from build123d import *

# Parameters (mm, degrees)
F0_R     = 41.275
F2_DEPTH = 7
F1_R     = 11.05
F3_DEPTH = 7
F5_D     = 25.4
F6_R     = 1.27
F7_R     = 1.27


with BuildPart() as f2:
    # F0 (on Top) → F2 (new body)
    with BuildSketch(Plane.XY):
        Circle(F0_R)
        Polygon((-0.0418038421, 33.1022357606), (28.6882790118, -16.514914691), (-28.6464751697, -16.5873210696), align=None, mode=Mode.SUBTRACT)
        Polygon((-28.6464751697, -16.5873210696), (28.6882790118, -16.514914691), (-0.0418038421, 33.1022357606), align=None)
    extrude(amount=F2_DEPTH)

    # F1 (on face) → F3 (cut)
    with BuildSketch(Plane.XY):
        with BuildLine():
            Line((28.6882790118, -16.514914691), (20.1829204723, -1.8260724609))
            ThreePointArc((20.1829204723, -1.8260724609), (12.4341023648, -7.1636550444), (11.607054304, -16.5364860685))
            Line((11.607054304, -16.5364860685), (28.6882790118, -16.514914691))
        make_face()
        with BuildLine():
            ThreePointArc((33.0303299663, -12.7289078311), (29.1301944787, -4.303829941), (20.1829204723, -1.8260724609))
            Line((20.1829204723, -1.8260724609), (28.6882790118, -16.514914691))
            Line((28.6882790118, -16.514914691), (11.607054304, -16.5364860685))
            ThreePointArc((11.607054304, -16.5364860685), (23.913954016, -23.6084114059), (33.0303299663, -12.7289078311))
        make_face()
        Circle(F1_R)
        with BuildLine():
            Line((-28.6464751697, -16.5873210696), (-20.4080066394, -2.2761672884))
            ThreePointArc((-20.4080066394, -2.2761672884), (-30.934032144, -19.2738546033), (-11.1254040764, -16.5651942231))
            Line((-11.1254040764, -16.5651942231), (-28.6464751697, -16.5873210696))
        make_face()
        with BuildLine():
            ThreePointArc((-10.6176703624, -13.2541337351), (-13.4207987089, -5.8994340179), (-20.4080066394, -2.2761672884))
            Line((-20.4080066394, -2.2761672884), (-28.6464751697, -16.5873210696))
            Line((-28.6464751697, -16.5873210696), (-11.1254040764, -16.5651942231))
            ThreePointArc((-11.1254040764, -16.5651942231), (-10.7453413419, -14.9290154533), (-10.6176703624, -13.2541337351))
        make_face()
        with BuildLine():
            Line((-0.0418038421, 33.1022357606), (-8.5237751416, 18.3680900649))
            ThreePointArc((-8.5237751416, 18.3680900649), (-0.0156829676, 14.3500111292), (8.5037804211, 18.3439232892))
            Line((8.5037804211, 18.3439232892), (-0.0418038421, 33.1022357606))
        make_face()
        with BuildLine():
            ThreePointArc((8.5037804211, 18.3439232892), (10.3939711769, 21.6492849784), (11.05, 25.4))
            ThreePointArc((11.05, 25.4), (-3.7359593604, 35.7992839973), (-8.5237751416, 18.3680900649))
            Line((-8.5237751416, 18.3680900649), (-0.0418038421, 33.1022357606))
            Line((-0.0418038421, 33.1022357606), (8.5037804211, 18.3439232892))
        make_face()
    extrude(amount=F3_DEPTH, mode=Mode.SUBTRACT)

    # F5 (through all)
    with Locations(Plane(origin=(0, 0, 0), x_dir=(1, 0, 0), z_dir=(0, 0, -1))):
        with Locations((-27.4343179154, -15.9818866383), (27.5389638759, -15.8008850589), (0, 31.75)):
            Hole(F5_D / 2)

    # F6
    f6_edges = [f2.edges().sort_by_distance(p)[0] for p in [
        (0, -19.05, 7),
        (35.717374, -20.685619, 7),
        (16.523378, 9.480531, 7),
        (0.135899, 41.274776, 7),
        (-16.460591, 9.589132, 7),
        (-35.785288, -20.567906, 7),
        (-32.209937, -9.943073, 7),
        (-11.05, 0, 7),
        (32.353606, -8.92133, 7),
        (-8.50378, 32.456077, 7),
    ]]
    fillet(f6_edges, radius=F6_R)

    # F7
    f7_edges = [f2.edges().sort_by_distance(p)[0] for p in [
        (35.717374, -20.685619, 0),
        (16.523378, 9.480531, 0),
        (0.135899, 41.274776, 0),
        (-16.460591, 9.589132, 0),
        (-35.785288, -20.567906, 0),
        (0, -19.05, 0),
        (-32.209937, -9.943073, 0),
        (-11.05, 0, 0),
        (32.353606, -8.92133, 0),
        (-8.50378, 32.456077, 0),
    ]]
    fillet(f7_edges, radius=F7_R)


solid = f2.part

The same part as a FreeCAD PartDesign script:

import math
import FreeCAD as App
import Part
import Sketcher

V = App.Vector
Q = App.Units.Quantity


def edges_at(feature, points):
    """Names of the edges that pass closest to the given points."""
    edges = feature.Shape.Edges
    near = lambda p: min(range(len(edges)), key=lambda i: edges[i].distToShape(Part.Vertex(*p))[0])
    return sorted({f"Edge{near(p) + 1}" for p in points})

doc = App.newDocument("Part")
body = doc.addObject("PartDesign::Body", "Body")

# Sketch on XY plane
sketch1 = body.newObject("Sketcher::SketchObject", "Sketch")
sketch1.AttachmentSupport = (doc.getObject("XY_Plane"), [""])
sketch1.MapMode = "FlatFace"
sketch1.addGeometry(Part.Circle(V(0, 0, 0), V(0, 0, 1), 41.275), False)
sketch1.addConstraint([
    Sketcher.Constraint("Coincident", 0, 3, -1, 1),
    Sketcher.Constraint("Diameter", 0, Q("3.25 in")),
])
pad1 = body.newObject("PartDesign::Pad", "Pad")
pad1.Profile = sketch1
pad1.Length = 7

# Sketch on XY plane
sketch2 = body.newObject("Sketcher::SketchObject", "Sketch001")
sketch2.AttachmentSupport = (doc.getObject("XY_Plane"), [""])
sketch2.MapMode = "FlatFace"
sketch2.addGeometry([
    Part.ArcOfCircle(Part.Circle(V(21.98033, -12.728908, 0), V(0, 0, 1), 11.05), math.radians(99.361413), math.radians(200.15599)),  # 0
    Part.ArcOfCircle(Part.Circle(V(21.98033, -12.728908, 0), V(0, 0, 1), 11.05), math.radians(-159.84401), math.radians(99.361413)),  # 1
    Part.Circle(V(0, 0, 0), V(0, 0, 1), 11.05),  # 2
    Part.ArcOfCircle(Part.Circle(V(-21.66767, -13.254134, 0), V(0, 0, 1), 11.05), math.radians(83.454239), math.radians(342.563809)),  # 3
    Part.ArcOfCircle(Part.Circle(V(-21.66767, -13.254134, 0), V(0, 0, 1), 11.05), math.radians(-17.436191), math.radians(0)),  # 4
    Part.ArcOfCircle(Part.Circle(V(-21.66767, -13.254134, 0), V(0, 0, 1), 11.05), math.radians(0), math.radians(83.454239)),  # 5
    Part.ArcOfCircle(Part.Circle(V(0, 25.4, 0), V(0, 0, 1), 11.05), math.radians(-140.478187), math.radians(-39.68445)),  # 6
    Part.ArcOfCircle(Part.Circle(V(0, 25.4, 0), V(0, 0, 1), 11.05), math.radians(-39.68445), math.radians(0)),  # 7
    Part.ArcOfCircle(Part.Circle(V(0, 25.4, 0), V(0, 0, 1), 11.05), math.radians(0), math.radians(219.521813)),  # 8
], False)
sketch2.addConstraint([
    Sketcher.Constraint("Tangent", 0, 1, 1, 2),
    Sketcher.Constraint("Coincident", 1, 1, 0, 2),
    Sketcher.Constraint("Tangent", 3, 2, 4, 1),
    Sketcher.Constraint("Tangent", 4, 2, 5, 1),
    Sketcher.Constraint("Tangent", 5, 2, 3, 1),
    Sketcher.Constraint("Tangent", 6, 2, 7, 1),
    Sketcher.Constraint("Tangent", 7, 2, 8, 1),
    Sketcher.Constraint("Tangent", 8, 2, 6, 1),
    Sketcher.Constraint("Coincident", 2, 3, -1, 1),
    Sketcher.Constraint("Equal", 1, 2),
    Sketcher.Constraint("Equal", 2, 3),
    Sketcher.Constraint("Equal", 5, 6),
    Sketcher.Constraint("PointOnObject", 6, 3, -2),
    Sketcher.Constraint("Horizontal", 5, 3, 4, 2),
    Sketcher.Constraint("Horizontal", 8, 3, 7, 2),
    Sketcher.Constraint("DistanceY", -1, 1, 6, 3, Q("1 in")),
    Sketcher.Constraint("Diameter", 2, 22.1),
    Sketcher.Constraint("DistanceX", 3, 3, 0, 3, 43.648),
    Sketcher.Constraint("DistanceX", -1, 1, 0, 3, 21.98033),
    Sketcher.Constraint("DistanceX", -1, 1, 0, 1, 20.18292),
    Sketcher.Constraint("DistanceX", -1, 1, 6, 2, 8.50378),
    Sketcher.Constraint("DistanceY", -1, 1, 8, 2, 18.36809),
    Sketcher.Constraint("DistanceY", 1, 1, 0, 3, 3.807578),
    Sketcher.Constraint("DistanceY", 3, 2, 4, 3, 3.31106),
    Sketcher.Constraint("DistanceY", 3, 2, 1, 1, 0.028708),
    Sketcher.Constraint("DistanceY", 0, 3, -1, 1, 12.728908),
    Sketcher.Constraint("DistanceX", 5, 2, -1, 1, 20.408007),
])
pocket1 = body.newObject("PartDesign::Pocket", "Pocket")
pocket1.Profile = sketch2
pocket1.Length = 7
pocket1.Reversed = True

# Sketch on XY plane
sketch3 = body.newObject("Sketcher::SketchObject", "Sketch002")
sketch3.AttachmentSupport = (doc.getObject("XY_Plane"), [""])
sketch3.MapMode = "FlatFace"
sketch3.addGeometry([
    Part.Circle(V(-27.434318, 15.981887, 0), V(0, 0, 1), 12.7),
    Part.Circle(V(27.538964, 15.800885, 0), V(0, 0, 1), 12.7),
    Part.Circle(V(0, -31.75, 0), V(0, 0, 1), 12.7),
], False)
sketch3.addConstraint([
    Sketcher.Constraint("Equal", 0, 1),
    Sketcher.Constraint("Equal", 1, 2),
    Sketcher.Constraint("PointOnObject", 2, 3, -2),
    Sketcher.Constraint("Diameter", 0, Q("1 in")),
    Sketcher.Constraint("DistanceY", 2, 3, -1, 1, Q("1.25 in")),
    Sketcher.Constraint("DistanceY", 1, 3, 0, 3, 0.181002),
    Sketcher.Constraint("DistanceX", 0, 3, 1, 3, 54.973282),
    Sketcher.Constraint("DistanceX", 0, 3, -1, 1, 27.434318),
    Sketcher.Constraint("DistanceY", -1, 1, 0, 3, 15.981887),
])
doc.recompute()
hole = body.newObject("PartDesign::Hole", "Hole")
hole.Profile = sketch3
hole.ThreadType = "None"
hole.Diameter = Q("1 in")
hole.DepthType = "ThroughAll"
hole.Reversed = True
doc.recompute()

fillet = body.newObject("PartDesign::Fillet", "Fillet")
fillet.Base = (hole, edges_at(hole, [
    (0, -19.05, 7),
    (35.717, -20.686, 7),
    (16.523, 9.481, 7),
    (0.136, 41.275, 7),
    (-16.461, 9.589, 7),
    (-35.785, -20.568, 7),
    (-30.934, -19.274, 7),
    (-11.05, 0, 7),
    (31.527, -18.294, 7),
    (-3.736, 35.799, 7),
]))
fillet.Radius = Q("0.05 in")
doc.recompute()

fillet2 = body.newObject("PartDesign::Fillet", "Fillet001")
fillet2.Base = (fillet, edges_at(fillet, [
    (35.717, -20.686, 0),
    (16.523, 9.481, 0),
    (0.136, 41.275, 0),
    (-16.461, 9.589, 0),
    (-35.785, -20.568, 0),
    (0, -19.05, 0),
    (-30.934, -19.274, 0),
    (-11.05, 0, 0),
    (31.527, -18.294, 0),
    (-3.736, 35.799, 0),
]))
fillet2.Radius = Q("0.05 in")

doc.recompute()
